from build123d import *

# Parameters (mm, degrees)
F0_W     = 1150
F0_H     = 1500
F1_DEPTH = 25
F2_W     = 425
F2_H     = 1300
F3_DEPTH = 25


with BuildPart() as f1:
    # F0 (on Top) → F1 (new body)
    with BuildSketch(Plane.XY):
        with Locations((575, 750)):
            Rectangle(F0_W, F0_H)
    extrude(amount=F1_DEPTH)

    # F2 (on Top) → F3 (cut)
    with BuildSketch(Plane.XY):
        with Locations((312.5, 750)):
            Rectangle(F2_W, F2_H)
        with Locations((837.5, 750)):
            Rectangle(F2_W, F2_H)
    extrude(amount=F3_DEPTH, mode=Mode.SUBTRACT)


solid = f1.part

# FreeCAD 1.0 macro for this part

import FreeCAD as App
import Part
import Sketcher


def add_polygon(sketch, points):
    """Adds a closed chain of lines whose ends are joined by coincident constraints."""
    first, n = sketch.GeometryCount, len(points)
    for a, b in zip(points, points[1:] + points[:1]):
        sketch.addGeometry(Part.LineSegment(App.Vector(*a, 0), App.Vector(*b, 0)), False)
    for i in range(n):
        sketch.addConstraint(Sketcher.Constraint("Coincident", first + i, 2, first + (i + 1) % n, 1))

doc = App.newDocument("Part")
body = doc.addObject("PartDesign::Body", "Body")

# Sketch on XY plane
sketch1 = body.newObject("Sketcher::SketchObject", "Sketch")
sketch1.AttachmentSupport = (doc.getObject("XY_Plane"), [""])
sketch1.MapMode = "FlatFace"
add_polygon(sketch1, [(0, 1500), (0, 0), (1150, 0), (1150, 1500)])  # lines 0-3
sketch1.addConstraint([
    Sketcher.Constraint("Vertical", 0),
    Sketcher.Constraint("Horizontal", 1),
    Sketcher.Constraint("Vertical", 2),
    Sketcher.Constraint("Horizontal", 3),
    Sketcher.Constraint("Coincident", 0, 2, -1, 1),
    Sketcher.Constraint("DistanceX", 1, 1, 1, 2, 1150.0),
    Sketcher.Constraint("DistanceY", 0, 2, 0, 1, 1500.0),
])
pad1 = body.newObject("PartDesign::Pad", "Pad")
pad1.Profile = sketch1
pad1.Length = 25

# Sketch on XY plane
sketch2 = body.newObject("Sketcher::SketchObject", "Sketch001")
sketch2.AttachmentSupport = (doc.getObject("XY_Plane"), [""])
sketch2.MapMode = "FlatFace"
add_polygon(sketch2, [(100, 1400), (100, 100), (525, 100), (525, 1400)])  # lines 0-3
add_polygon(sketch2, [(625, 1400), (625, 100), (1050, 100), (1050, 1400)])  # lines 4-7
sketch2.addConstraint([
    Sketcher.Constraint("Vertical", 0),
    Sketcher.Constraint("Horizontal", 1),
    Sketcher.Constraint("Vertical", 2),
    Sketcher.Constraint("Horizontal", 3),
    Sketcher.Constraint("Vertical", 4),
    Sketcher.Constraint("Horizontal", 5),
    Sketcher.Constraint("Vertical", 6),
    Sketcher.Constraint("Horizontal", 7),
    Sketcher.Constraint("Horizontal", 1, 2, 4, 2),
    Sketcher.Constraint("Horizontal", 3, 2, 6, 2),
    Sketcher.Constraint("Equal", 3, 5),
    Sketcher.Constraint("DistanceX", 1, 1, 1, 2, 425.0),
    Sketcher.Constraint("DistanceY", 0, 2, 0, 1, 1300.0),
    Sketcher.Constraint("DistanceX", -1, 1, 0, 2, 100.0),
    Sketcher.Constraint("DistanceY", -1, 1, 0, 2, 100.0),
    Sketcher.Constraint("DistanceX", -1, 1, 4, 2, 625.0),
])
pocket1 = body.newObject("PartDesign::Pocket", "Pocket")
pocket1.Profile = sketch2
pocket1.Length = 25
pocket1.Reversed = True

doc.recompute()
